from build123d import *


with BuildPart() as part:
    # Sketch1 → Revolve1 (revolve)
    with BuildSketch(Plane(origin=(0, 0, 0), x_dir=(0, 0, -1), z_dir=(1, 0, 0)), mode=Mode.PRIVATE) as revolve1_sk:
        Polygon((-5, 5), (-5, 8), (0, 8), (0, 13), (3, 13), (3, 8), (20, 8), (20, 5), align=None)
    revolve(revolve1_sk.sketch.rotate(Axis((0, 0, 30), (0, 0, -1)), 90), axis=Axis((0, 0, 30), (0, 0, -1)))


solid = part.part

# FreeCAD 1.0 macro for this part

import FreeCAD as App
import Part
import Sketcher

V = App.Vector
Q = App.Units.Quantity

doc = App.newDocument("Part")
body = doc.addObject("PartDesign::Body", "Body")

# Sketch on YZ plane
sketch1 = doc.addObject("Sketcher::SketchObject", "Sketch")
body.addObject(sketch1)
sketch1.AttachmentSupport = (doc.YZ_Plane, [""])
sketch1.MapMode = "FlatFace"
sketch1.addGeometry([
    Part.LineSegment(V(8, 5, 0), V(5, 5, 0)),  # 0
    Part.LineSegment(V(5, 5, 0), V(5, -20, 0)),  # 1
    Part.LineSegment(V(5, -20, 0), V(8, -20, 0)),  # 2
    Part.LineSegment(V(8, -20, 0), V(8, -3, 0)),  # 3
    Part.LineSegment(V(8, -3, 0), V(13, -3, 0)),  # 4
    Part.LineSegment(V(13, -3, 0), V(13, 0, 0)),  # 5
    Part.LineSegment(V(13, 0, 0), V(8, 0, 0)),  # 6
    Part.LineSegment(V(8, 0, 0), V(8, 5, 0)),  # 7
], False)
sketch1.addConstraint([
    Sketcher.Constraint("Coincident", 0, 2, 1, 1),
    Sketcher.Constraint("Coincident", 1, 2, 2, 1),
    Sketcher.Constraint("Coincident", 2, 2, 3, 1),
    Sketcher.Constraint("Coincident", 3, 2, 4, 1),
    Sketcher.Constraint("Coincident", 4, 2, 5, 1),
    Sketcher.Constraint("Coincident", 5, 2, 6, 1),
    Sketcher.Constraint("Coincident", 6, 2, 7, 1),
    Sketcher.Constraint("Coincident", 7, 2, 0, 1),
    Sketcher.Constraint("Horizontal", 0),
    Sketcher.Constraint("Vertical", 1),
    Sketcher.Constraint("Horizontal", 2),
    Sketcher.Constraint("Vertical", 3),
    Sketcher.Constraint("Horizontal", 4),
    Sketcher.Constraint("Vertical", 5),
    Sketcher.Constraint("Horizontal", 6),
    Sketcher.Constraint("Vertical", 7),
    Sketcher.Constraint("PointOnObject", 5, 2, -1),
    Sketcher.Constraint("Vertical", 3, 2, 6, 2),
    Sketcher.Constraint("Equal", 2, 5),
    Sketcher.Constraint("Equal", 6, 7),
    Sketcher.Constraint("DistanceX", 0, 2, 0, 1, Q("3 mm")),
    Sketcher.Constraint("DistanceX", 4, 1, 4, 2, Q("5 mm")),
    Sketcher.Constraint("DistanceY", 1, 2, 1, 1, Q("25 mm")),
    Sketcher.Constraint("DistanceX", -1, 1, 0, 2, Q("5 mm")),
])
revolution = doc.addObject("PartDesign::Revolution", "Revolution")
body.addObject(revolution)
revolution.Profile = sketch1
revolution.ReferenceAxis = (sketch1, ["V_Axis"])
revolution.Angle = 360

doc.recompute()
